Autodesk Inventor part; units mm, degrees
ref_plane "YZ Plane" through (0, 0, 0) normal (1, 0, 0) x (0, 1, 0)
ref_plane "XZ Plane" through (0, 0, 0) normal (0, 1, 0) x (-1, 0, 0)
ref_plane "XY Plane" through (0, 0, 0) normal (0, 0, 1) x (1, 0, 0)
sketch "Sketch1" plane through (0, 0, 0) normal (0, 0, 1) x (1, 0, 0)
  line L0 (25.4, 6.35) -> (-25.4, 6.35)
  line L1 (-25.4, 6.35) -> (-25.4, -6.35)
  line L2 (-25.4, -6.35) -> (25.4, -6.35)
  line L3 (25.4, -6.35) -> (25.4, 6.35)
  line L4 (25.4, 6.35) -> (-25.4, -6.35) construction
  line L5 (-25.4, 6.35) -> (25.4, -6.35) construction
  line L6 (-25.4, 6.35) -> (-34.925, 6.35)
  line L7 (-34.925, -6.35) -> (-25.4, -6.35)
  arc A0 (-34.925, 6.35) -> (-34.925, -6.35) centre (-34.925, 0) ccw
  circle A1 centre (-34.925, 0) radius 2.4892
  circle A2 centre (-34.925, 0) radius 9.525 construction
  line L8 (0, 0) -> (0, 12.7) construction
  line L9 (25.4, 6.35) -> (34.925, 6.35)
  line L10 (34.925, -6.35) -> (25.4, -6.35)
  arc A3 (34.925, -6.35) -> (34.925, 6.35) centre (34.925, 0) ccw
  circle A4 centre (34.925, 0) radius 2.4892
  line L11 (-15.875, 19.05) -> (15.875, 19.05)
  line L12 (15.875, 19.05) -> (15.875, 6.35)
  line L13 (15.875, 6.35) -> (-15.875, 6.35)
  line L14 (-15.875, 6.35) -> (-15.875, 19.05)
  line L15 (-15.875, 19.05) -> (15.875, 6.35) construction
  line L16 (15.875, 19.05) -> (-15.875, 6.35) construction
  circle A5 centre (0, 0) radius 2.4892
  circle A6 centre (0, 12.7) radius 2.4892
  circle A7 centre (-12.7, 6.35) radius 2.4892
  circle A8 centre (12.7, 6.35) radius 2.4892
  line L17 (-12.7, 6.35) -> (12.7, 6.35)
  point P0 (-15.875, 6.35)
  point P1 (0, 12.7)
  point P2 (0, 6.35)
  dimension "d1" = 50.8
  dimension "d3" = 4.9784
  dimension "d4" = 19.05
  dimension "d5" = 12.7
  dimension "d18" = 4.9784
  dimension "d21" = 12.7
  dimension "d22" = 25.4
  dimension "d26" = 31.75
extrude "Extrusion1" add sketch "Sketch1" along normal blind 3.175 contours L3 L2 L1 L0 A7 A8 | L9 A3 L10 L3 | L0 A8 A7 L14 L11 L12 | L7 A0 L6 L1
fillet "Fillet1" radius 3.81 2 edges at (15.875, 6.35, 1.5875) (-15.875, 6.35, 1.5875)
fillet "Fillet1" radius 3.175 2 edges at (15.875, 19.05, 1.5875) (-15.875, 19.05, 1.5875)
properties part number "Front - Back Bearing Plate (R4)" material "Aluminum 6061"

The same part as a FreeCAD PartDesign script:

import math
import FreeCAD as App
import Part
import Sketcher
from FreeCAD import Vector
Q = App.Units.Quantity


def edges_at(feature, points):
    """Names of the edges that pass closest to the given points."""
    edges = feature.Shape.Edges
    near = lambda p: min(range(len(edges)), key=lambda i: edges[i].distToShape(Part.Vertex(*p))[0])
    return sorted({f"Edge{near(p) + 1}" for p in points})

doc = App.newDocument("Part")
body = doc.addObject("PartDesign::Body", "Body")

# Sketch on XY plane
sketch1 = doc.addObject("Sketcher::SketchObject", "Sketch")
body.addObject(sketch1)
sketch1.AttachmentSupport = (doc.XY_Plane, [""])
sketch1.MapMode = "FlatFace"
sketch1.addGeometry(Part.ArcOfCircle(Part.Circle(Vector(34.9, 0, 0), Vector(0, 0, 1), 6.3), math.radians(-90), math.radians(90)), False)
sketch1.addGeometry(Part.LineSegment(Vector(34.9, 6.3, 0), Vector(15.9, 6.3, 0)), False)
sketch1.addGeometry(Part.LineSegment(Vector(15.9, 6.3, 0), Vector(15.9, 19.1, 0)), False)
sketch1.addGeometry(Part.LineSegment(Vector(15.9, 19.1, 0), Vector(-15.9, 19.1, 0)), False)
sketch1.addGeometry(Part.LineSegment(Vector(-15.9, 19.1, 0), Vector(-15.9, 6.3, 0)), False)
sketch1.addGeometry(Part.LineSegment(Vector(-15.9, 6.3, 0), Vector(-34.9, 6.3, 0)), False)
sketch1.addGeometry(Part.ArcOfCircle(Part.Circle(Vector(-34.9, 0, 0), Vector(0, 0, 1), 6.3), math.radians(90), math.radians(270)), False)
sketch1.addGeometry(Part.LineSegment(Vector(-34.9, -6.3, 0), Vector(34.9, -6.3, 0)), False)
sketch1.addGeometry(Part.Circle(Vector(-12.7, 6.3, 0), Vector(0, 0, 1), 2.5), False)
sketch1.addGeometry(Part.Circle(Vector(12.7, 6.3, 0), Vector(0, 0, 1), 2.5), False)
sketch1.addGeometry(Part.Circle(Vector(0, 0, 0), Vector(0, 0, 1), 2.5), False)
sketch1.addGeometry(Part.Circle(Vector(34.9, 0, 0), Vector(0, 0, 1), 2.5), False)
sketch1.addGeometry(Part.Circle(Vector(-34.9, 0, 0), Vector(0, 0, 1), 2.5), False)
sketch1.addGeometry(Part.Circle(Vector(0, 12.7, 0), Vector(0, 0, 1), 2.5), False)
sketch1.addConstraint(Sketcher.Constraint("Tangent", 0, 2, 1, 1))
sketch1.addConstraint(Sketcher.Constraint("Coincident", 1, 2, 2, 1))
sketch1.addConstraint(Sketcher.Constraint("Coincident", 2, 2, 3, 1))
sketch1.addConstraint(Sketcher.Constraint("Coincident", 3, 2, 4, 1))
sketch1.addConstraint(Sketcher.Constraint("Coincident", 4, 2, 5, 1))
sketch1.addConstraint(Sketcher.Constraint("Tangent", 5, 2, 6, 1))
sketch1.addConstraint(Sketcher.Constraint("Tangent", 6, 2, 7, 1))
sketch1.addConstraint(Sketcher.Constraint("Tangent", 7, 2, 0, 1))
sketch1.addConstraint(Sketcher.Constraint("Horizontal", 1))
sketch1.addConstraint(Sketcher.Constraint("Vertical", 2))
sketch1.addConstraint(Sketcher.Constraint("Horizontal", 3))
sketch1.addConstraint(Sketcher.Constraint("Vertical", 4))
sketch1.addConstraint(Sketcher.Constraint("Horizontal", 5))
sketch1.addConstraint(Sketcher.Constraint("Horizontal", 7))
sketch1.addConstraint(Sketcher.Constraint("Coincident", 10, 3, -1, 1))
sketch1.addConstraint(Sketcher.Constraint("Coincident", 11, 3, 0, 3))
sketch1.addConstraint(Sketcher.Constraint("Coincident", 12, 3, 6, 3))
sketch1.addConstraint(Sketcher.Constraint("Equal", 0, 6))
sketch1.addConstraint(Sketcher.Constraint("Equal", 8, 9))
sketch1.addConstraint(Sketcher.Constraint("Equal", 9, 10))
sketch1.addConstraint(Sketcher.Constraint("Equal", 10, 11))
sketch1.addConstraint(Sketcher.Constraint("Equal", 11, 12))
sketch1.addConstraint(Sketcher.Constraint("Equal", 12, 13))
sketch1.addConstraint(Sketcher.Constraint("Symmetric", 0, 3, 6, 3, -1, 1))
sketch1.addConstraint(Sketcher.Constraint("Symmetric", 8, 3, 9, 3, -2))
sketch1.addConstraint(Sketcher.Constraint("PointOnObject", 13, 3, -2))
sketch1.addConstraint(Sketcher.Constraint("Horizontal", 9, 3, 0, 2))
sketch1.addConstraint(Sketcher.Constraint("Equal", 1, 5))
sketch1.addConstraint(Sketcher.Constraint("Radius", 0, Q("0.25 in")))
sketch1.addConstraint(Sketcher.Constraint("Diameter", 8, Q("0.196 in")))
sketch1.addConstraint(Sketcher.Constraint("DistanceY", 2, 1, 2, 2, Q("0.5 in")))
sketch1.addConstraint(Sketcher.Constraint("DistanceX", 8, 3, 9, 3, Q("1 in")))
sketch1.addConstraint(Sketcher.Constraint("DistanceX", 1, 2, 1, 1, Q("0.75 in")))
sketch1.addConstraint(Sketcher.Constraint("DistanceX", 3, 2, 3, 1, Q("1.25 in")))
sketch1.addConstraint(Sketcher.Constraint("DistanceY", -1, 1, 13, 3, Q("0.5 in")))
pad1 = doc.addObject("PartDesign::Pad", "Pad")
body.addObject(pad1)
pad1.Profile = sketch1
pad1.Length = Q("0.125 in")
doc.recompute()

fillet = doc.addObject("PartDesign::Fillet", "Fillet")
body.addObject(fillet)
fillet.Base = (pad1, edges_at(pad1, [(15.875, 6.35, 1.587), (-15.875, 6.35, 1.587)]))
fillet.Radius = Q("0.15 in")
doc.recompute()

fillet2 = doc.addObject("PartDesign::Fillet", "Fillet001")
body.addObject(fillet2)
fillet2.Base = (fillet, edges_at(fillet, [(15.875, 19.05, 1.587), (-15.875, 19.05, 1.587)]))
fillet2.Radius = Q("0.125 in")

doc.recompute()
